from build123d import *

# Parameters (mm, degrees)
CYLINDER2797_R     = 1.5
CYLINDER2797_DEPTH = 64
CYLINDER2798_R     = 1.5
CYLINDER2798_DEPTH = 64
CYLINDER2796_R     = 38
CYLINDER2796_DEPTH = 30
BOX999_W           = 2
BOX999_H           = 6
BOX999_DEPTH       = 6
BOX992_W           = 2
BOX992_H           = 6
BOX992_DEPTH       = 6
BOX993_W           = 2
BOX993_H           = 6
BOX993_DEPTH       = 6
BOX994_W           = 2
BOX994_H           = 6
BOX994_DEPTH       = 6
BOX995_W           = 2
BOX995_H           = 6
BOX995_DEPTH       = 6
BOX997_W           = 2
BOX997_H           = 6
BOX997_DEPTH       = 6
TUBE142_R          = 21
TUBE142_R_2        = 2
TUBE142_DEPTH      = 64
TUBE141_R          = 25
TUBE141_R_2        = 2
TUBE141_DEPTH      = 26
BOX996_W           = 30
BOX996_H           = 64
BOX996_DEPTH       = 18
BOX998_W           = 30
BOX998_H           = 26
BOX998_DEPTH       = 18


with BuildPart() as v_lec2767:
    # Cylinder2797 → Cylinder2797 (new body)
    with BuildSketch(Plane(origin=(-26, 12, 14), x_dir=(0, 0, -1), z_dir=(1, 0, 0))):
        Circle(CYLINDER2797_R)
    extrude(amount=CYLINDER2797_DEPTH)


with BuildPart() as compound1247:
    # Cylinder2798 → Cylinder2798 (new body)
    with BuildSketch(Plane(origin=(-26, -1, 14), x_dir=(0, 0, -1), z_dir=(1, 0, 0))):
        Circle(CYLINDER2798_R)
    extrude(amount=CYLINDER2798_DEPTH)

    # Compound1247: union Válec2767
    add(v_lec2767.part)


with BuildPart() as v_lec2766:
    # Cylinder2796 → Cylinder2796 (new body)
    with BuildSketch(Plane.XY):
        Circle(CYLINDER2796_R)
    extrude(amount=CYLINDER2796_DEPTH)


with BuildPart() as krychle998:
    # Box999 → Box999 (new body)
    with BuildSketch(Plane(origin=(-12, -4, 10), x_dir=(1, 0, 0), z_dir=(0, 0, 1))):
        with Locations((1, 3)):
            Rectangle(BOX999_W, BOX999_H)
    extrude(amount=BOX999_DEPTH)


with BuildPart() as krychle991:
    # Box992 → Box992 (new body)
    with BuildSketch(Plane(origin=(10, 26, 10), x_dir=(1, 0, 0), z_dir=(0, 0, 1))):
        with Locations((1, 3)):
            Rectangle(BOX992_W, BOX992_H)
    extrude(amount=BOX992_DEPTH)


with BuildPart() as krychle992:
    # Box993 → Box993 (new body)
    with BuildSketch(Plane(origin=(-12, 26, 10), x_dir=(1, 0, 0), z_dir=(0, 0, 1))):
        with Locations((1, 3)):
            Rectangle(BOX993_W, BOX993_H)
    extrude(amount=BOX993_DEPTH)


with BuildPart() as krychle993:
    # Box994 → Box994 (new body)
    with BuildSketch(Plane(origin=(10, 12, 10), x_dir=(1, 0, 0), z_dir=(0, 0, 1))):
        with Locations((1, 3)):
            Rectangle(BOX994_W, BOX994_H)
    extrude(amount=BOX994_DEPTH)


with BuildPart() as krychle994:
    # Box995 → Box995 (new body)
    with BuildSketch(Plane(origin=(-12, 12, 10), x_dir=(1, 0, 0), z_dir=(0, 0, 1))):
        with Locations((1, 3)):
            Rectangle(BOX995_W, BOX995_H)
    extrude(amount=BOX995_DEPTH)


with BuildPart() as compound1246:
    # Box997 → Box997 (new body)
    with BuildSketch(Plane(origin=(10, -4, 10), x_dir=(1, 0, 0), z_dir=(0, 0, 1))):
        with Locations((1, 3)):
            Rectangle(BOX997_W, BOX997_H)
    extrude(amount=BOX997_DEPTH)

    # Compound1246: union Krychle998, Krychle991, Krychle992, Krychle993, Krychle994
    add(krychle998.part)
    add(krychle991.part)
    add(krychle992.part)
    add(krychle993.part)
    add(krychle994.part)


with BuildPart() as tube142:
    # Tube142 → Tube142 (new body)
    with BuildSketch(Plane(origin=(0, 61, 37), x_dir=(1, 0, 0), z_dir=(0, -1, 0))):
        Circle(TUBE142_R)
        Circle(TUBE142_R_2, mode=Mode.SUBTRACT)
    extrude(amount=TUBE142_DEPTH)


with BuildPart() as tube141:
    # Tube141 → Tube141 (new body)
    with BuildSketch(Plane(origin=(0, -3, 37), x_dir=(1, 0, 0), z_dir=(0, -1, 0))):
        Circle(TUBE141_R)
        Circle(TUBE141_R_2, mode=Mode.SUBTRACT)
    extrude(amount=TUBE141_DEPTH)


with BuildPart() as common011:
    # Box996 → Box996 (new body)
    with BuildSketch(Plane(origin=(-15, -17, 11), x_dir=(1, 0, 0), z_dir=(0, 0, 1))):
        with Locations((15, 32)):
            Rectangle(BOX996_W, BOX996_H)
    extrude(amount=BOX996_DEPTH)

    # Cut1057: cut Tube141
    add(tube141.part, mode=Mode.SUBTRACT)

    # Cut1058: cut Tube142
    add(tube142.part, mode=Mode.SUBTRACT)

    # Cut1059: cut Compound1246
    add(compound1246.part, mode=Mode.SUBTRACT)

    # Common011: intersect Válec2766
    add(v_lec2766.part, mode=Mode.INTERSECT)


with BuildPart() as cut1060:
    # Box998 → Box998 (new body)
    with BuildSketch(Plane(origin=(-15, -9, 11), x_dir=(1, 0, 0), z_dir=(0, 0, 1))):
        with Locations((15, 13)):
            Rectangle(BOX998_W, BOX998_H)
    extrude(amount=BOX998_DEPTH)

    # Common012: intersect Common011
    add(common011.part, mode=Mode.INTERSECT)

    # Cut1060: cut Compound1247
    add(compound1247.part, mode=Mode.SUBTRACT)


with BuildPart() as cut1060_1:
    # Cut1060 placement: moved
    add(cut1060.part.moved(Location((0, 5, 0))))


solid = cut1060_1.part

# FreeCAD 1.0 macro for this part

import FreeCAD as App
import Part
import Sketcher

V = App.Vector
Q = App.Units.Quantity

doc = App.newDocument("Part")
params = doc.addObject("Spreadsheet::Sheet", "Params")
for row, (alias, value) in enumerate([
    ("sketch1_diameter", "3 mm"),
    ("pad1_length", "64 mm"),
    ("sketch2_diameter", "3 mm"),
    ("pad2_length", "64 mm"),
    ("sketch3_diameter", "76 mm"),
    ("pad3_length", "30 mm"),
    ("sketch4_width", "2 mm"),
    ("sketch4_height", "6 mm"),
    ("pad4_length", "6 mm"),
    ("sketch5_width", "2 mm"),
    ("sketch5_height", "6 mm"),
    ("pad5_length", "6 mm"),
    ("sketch6_width", "2 mm"),
    ("sketch6_height", "6 mm"),
    ("pad6_length", "6 mm"),
    ("sketch7_width", "2 mm"),
    ("sketch7_height", "6 mm"),
    ("pad7_length", "6 mm"),
    ("sketch8_width", "2 mm"),
    ("sketch8_height", "6 mm"),
    ("pad8_length", "6 mm"),
    ("sketch9_width", "2 mm"),
    ("sketch9_height", "6 mm"),
    ("pad9_length", "6 mm"),
    ("sketch10_diameter", "42 mm"),
    ("sketch10_diameter2", "4 mm"),
    ("pad10_length", "64 mm"),
    ("sketch11_diameter", "50 mm"),
    ("sketch11_diameter2", "4 mm"),
    ("pad11_length", "26 mm"),
    ("sketch12_width", "30 mm"),
    ("sketch12_height", "64 mm"),
    ("pad12_length", "18 mm"),
    ("sketch13_width", "30 mm"),
    ("sketch13_height", "26 mm"),
    ("pad13_length", "18 mm"),
], start=1):
    params.set(f"A{row}", alias)
    params.set(f"B{row}", "=" + value)
    params.setAlias(f"B{row}", alias)

body = doc.addObject("PartDesign::Body", "Body")

# Sketch on YZ plane
sketch1 = body.newObject("Sketcher::SketchObject", "Sketch")
sketch1.AttachmentSupport = (doc.getObject("YZ_Plane"), [""])
sketch1.MapMode = "FlatFace"
sketch1.AttachmentOffset = App.Placement(V(0, 0, -26), App.Rotation())
sketch1.addGeometry(Part.Circle(V(12, 14, 0), V(0, 0, 1), 1.5), False)
sketch1.addConstraint([
    Sketcher.Constraint("Diameter", 0, Q("3 mm")),
    Sketcher.Constraint("DistanceX", -1, 1, 0, 3, Q("12 mm")),
    Sketcher.Constraint("DistanceY", -1, 1, 0, 3, Q("14 mm")),
])
sketch1.setExpression("Constraints[0]", "Params.sketch1_diameter")
pad1 = body.newObject("PartDesign::Pad", "Pad")
pad1.Profile = sketch1
pad1.setExpression("Length", "Params.pad1_length")
body2 = doc.addObject("PartDesign::Body", "Body001")
body2.AllowCompound = True

# Sketch on YZ plane
sketch2 = body2.newObject("Sketcher::SketchObject", "Sketch001")
sketch2.AttachmentSupport = (doc.getObject("YZ_Plane001"), [""])
sketch2.MapMode = "FlatFace"
sketch2.AttachmentOffset = App.Placement(V(0, 0, -26), App.Rotation())
sketch2.addGeometry(Part.Circle(V(-1, 14, 0), V(0, 0, 1), 1.5), False)
sketch2.addConstraint([
    Sketcher.Constraint("Diameter", 0, Q("3 mm")),
    Sketcher.Constraint("DistanceX", 0, 3, -1, 1, Q("1 mm")),
    Sketcher.Constraint("DistanceY", -1, 1, 0, 3, Q("14 mm")),
])
sketch2.setExpression("Constraints[0]", "Params.sketch2_diameter")
pad2 = body2.newObject("PartDesign::Pad", "Pad001")
pad2.Profile = sketch2
pad2.setExpression("Length", "Params.pad2_length")
doc.recompute()

boolean = body2.newObject("PartDesign::Boolean", "Boolean")
boolean.Type = "Fuse"
boolean.addObjects([body])
body3 = doc.addObject("PartDesign::Body", "Body002")

# Sketch on XY plane
sketch3 = body3.newObject("Sketcher::SketchObject", "Sketch002")
sketch3.AttachmentSupport = (doc.getObject("XY_Plane002"), [""])
sketch3.MapMode = "FlatFace"
sketch3.addGeometry(Part.Circle(V(0, 0, 0), V(0, 0, 1), 38), False)
sketch3.addConstraint([
    Sketcher.Constraint("Coincident", 0, 3, -1, 1),
    Sketcher.Constraint("Diameter", 0, Q("76 mm")),
])
sketch3.setExpression("Constraints[1]", "Params.sketch3_diameter")
pad3 = body3.newObject("PartDesign::Pad", "Pad002")
pad3.Profile = sketch3
pad3.setExpression("Length", "Params.pad3_length")
body4 = doc.addObject("PartDesign::Body", "Body003")

# Sketch on XY plane
sketch4 = body4.newObject("Sketcher::SketchObject", "Sketch003")
sketch4.AttachmentSupport = (doc.getObject("XY_Plane003"), [""])
sketch4.MapMode = "FlatFace"
sketch4.AttachmentOffset = App.Placement(V(0, 0, 10), App.Rotation())
sketch4.addGeometry([
    Part.LineSegment(V(-12, 2, 0), V(-12, -4, 0)),
    Part.LineSegment(V(-12, -4, 0), V(-10, -4, 0)),
    Part.LineSegment(V(-10, -4, 0), V(-10, 2, 0)),
    Part.LineSegment(V(-10, 2, 0), V(-12, 2, 0)),
], False)
sketch4.addConstraint([
    Sketcher.Constraint("Coincident", 0, 2, 1, 1),
    Sketcher.Constraint("Coincident", 1, 2, 2, 1),
    Sketcher.Constraint("Coincident", 2, 2, 3, 1),
    Sketcher.Constraint("Coincident", 3, 2, 0, 1),
    Sketcher.Constraint("Vertical", 0),
    Sketcher.Constraint("Horizontal", 1),
    Sketcher.Constraint("Vertical", 2),
    Sketcher.Constraint("Horizontal", 3),
    Sketcher.Constraint("DistanceX", 1, 1, 1, 2, Q("2 mm")),
    Sketcher.Constraint("DistanceY", 0, 2, 0, 1, Q("6 mm")),
    Sketcher.Constraint("DistanceX", 0, 2, -1, 1, Q("12 mm")),
    Sketcher.Constraint("DistanceY", 0, 2, -1, 1, Q("4 mm")),
])
sketch4.setExpression("Constraints[8]", "Params.sketch4_width")
sketch4.setExpression("Constraints[9]", "Params.sketch4_height")
pad4 = body4.newObject("PartDesign::Pad", "Pad003")
pad4.Profile = sketch4
pad4.setExpression("Length", "Params.pad4_length")
body5 = doc.addObject("PartDesign::Body", "Body004")

# Sketch on XY plane
sketch5 = body5.newObject("Sketcher::SketchObject", "Sketch004")
sketch5.AttachmentSupport = (doc.getObject("XY_Plane004"), [""])
sketch5.MapMode = "FlatFace"
sketch5.AttachmentOffset = App.Placement(V(0, 0, 10), App.Rotation())
sketch5.addGeometry([
    Part.LineSegment(V(10, 32, 0), V(10, 26, 0)),
    Part.LineSegment(V(10, 26, 0), V(12, 26, 0)),
    Part.LineSegment(V(12, 26, 0), V(12, 32, 0)),
    Part.LineSegment(V(12, 32, 0), V(10, 32, 0)),
], False)
sketch5.addConstraint([
    Sketcher.Constraint("Coincident", 0, 2, 1, 1),
    Sketcher.Constraint("Coincident", 1, 2, 2, 1),
    Sketcher.Constraint("Coincident", 2, 2, 3, 1),
    Sketcher.Constraint("Coincident", 3, 2, 0, 1),
    Sketcher.Constraint("Vertical", 0),
    Sketcher.Constraint("Horizontal", 1),
    Sketcher.Constraint("Vertical", 2),
    Sketcher.Constraint("Horizontal", 3),
    Sketcher.Constraint("DistanceX", 1, 1, 1, 2, Q("2 mm")),
    Sketcher.Constraint("DistanceY", 0, 2, 0, 1, Q("6 mm")),
    Sketcher.Constraint("DistanceX", -1, 1, 0, 2, Q("10 mm")),
    Sketcher.Constraint("DistanceY", -1, 1, 0, 2, Q("26 mm")),
])
sketch5.setExpression("Constraints[8]", "Params.sketch5_width")
sketch5.setExpression("Constraints[9]", "Params.sketch5_height")
pad5 = body5.newObject("PartDesign::Pad", "Pad004")
pad5.Profile = sketch5
pad5.setExpression("Length", "Params.pad5_length")
body6 = doc.addObject("PartDesign::Body", "Body005")

# Sketch on XY plane
sketch6 = body6.newObject("Sketcher::SketchObject", "Sketch005")
sketch6.AttachmentSupport = (doc.getObject("XY_Plane005"), [""])
sketch6.MapMode = "FlatFace"
sketch6.AttachmentOffset = App.Placement(V(0, 0, 10), App.Rotation())
sketch6.addGeometry([
    Part.LineSegment(V(-12, 32, 0), V(-12, 26, 0)),
    Part.LineSegment(V(-12, 26, 0), V(-10, 26, 0)),
    Part.LineSegment(V(-10, 26, 0), V(-10, 32, 0)),
    Part.LineSegment(V(-10, 32, 0), V(-12, 32, 0)),
], False)
sketch6.addConstraint([
    Sketcher.Constraint("Coincident", 0, 2, 1, 1),
    Sketcher.Constraint("Coincident", 1, 2, 2, 1),
    Sketcher.Constraint("Coincident", 2, 2, 3, 1),
    Sketcher.Constraint("Coincident", 3, 2, 0, 1),
    Sketcher.Constraint("Vertical", 0),
    Sketcher.Constraint("Horizontal", 1),
    Sketcher.Constraint("Vertical", 2),
    Sketcher.Constraint("Horizontal", 3),
    Sketcher.Constraint("DistanceX", 1, 1, 1, 2, Q("2 mm")),
    Sketcher.Constraint("DistanceY", 0, 2, 0, 1, Q("6 mm")),
    Sketcher.Constraint("DistanceX", 0, 2, -1, 1, Q("12 mm")),
    Sketcher.Constraint("DistanceY", -1, 1, 0, 2, Q("26 mm")),
])
sketch6.setExpression("Constraints[8]", "Params.sketch6_width")
sketch6.setExpression("Constraints[9]", "Params.sketch6_height")
pad6 = body6.newObject("PartDesign::Pad", "Pad005")
pad6.Profile = sketch6
pad6.setExpression("Length", "Params.pad6_length")
body7 = doc.addObject("PartDesign::Body", "Body006")

# Sketch on XY plane
sketch7 = body7.newObject("Sketcher::SketchObject", "Sketch006")
sketch7.AttachmentSupport = (doc.getObject("XY_Plane006"), [""])
sketch7.MapMode = "FlatFace"
sketch7.AttachmentOffset = App.Placement(V(0, 0, 10), App.Rotation())
sketch7.addGeometry([
    Part.LineSegment(V(10, 18, 0), V(10, 12, 0)),
    Part.LineSegment(V(10, 12, 0), V(12, 12, 0)),
    Part.LineSegment(V(12, 12, 0), V(12, 18, 0)),
    Part.LineSegment(V(12, 18, 0), V(10, 18, 0)),
], False)
sketch7.addConstraint([
    Sketcher.Constraint("Coincident", 0, 2, 1, 1),
    Sketcher.Constraint("Coincident", 1, 2, 2, 1),
    Sketcher.Constraint("Coincident", 2, 2, 3, 1),
    Sketcher.Constraint("Coincident", 3, 2, 0, 1),
    Sketcher.Constraint("Vertical", 0),
    Sketcher.Constraint("Horizontal", 1),
    Sketcher.Constraint("Vertical", 2),
    Sketcher.Constraint("Horizontal", 3),
    Sketcher.Constraint("DistanceX", 1, 1, 1, 2, Q("2 mm")),
    Sketcher.Constraint("DistanceY", 0, 2, 0, 1, Q("6 mm")),
    Sketcher.Constraint("DistanceX", -1, 1, 0, 2, Q("10 mm")),
    Sketcher.Constraint("DistanceY", -1, 1, 0, 2, Q("12 mm")),
])
sketch7.setExpression("Constraints[8]", "Params.sketch7_width")
sketch7.setExpression("Constraints[9]", "Params.sketch7_height")
pad7 = body7.newObject("PartDesign::Pad", "Pad006")
pad7.Profile = sketch7
pad7.setExpression("Length", "Params.pad7_length")
body8 = doc.addObject("PartDesign::Body", "Body007")

# Sketch on XY plane
sketch8 = body8.newObject("Sketcher::SketchObject", "Sketch007")
sketch8.AttachmentSupport = (doc.getObject("XY_Plane007"), [""])
sketch8.MapMode = "FlatFace"
sketch8.AttachmentOffset = App.Placement(V(0, 0, 10), App.Rotation())
sketch8.addGeometry([
    Part.LineSegment(V(-12, 18, 0), V(-12, 12, 0)),
    Part.LineSegment(V(-12, 12, 0), V(-10, 12, 0)),
    Part.LineSegment(V(-10, 12, 0), V(-10, 18, 0)),
    Part.LineSegment(V(-10, 18, 0), V(-12, 18, 0)),
], False)
sketch8.addConstraint([
    Sketcher.Constraint("Coincident", 0, 2, 1, 1),
    Sketcher.Constraint("Coincident", 1, 2, 2, 1),
    Sketcher.Constraint("Coincident", 2, 2, 3, 1),
    Sketcher.Constraint("Coincident", 3, 2, 0, 1),
    Sketcher.Constraint("Vertical", 0),
    Sketcher.Constraint("Horizontal", 1),
    Sketcher.Constraint("Vertical", 2),
    Sketcher.Constraint("Horizontal", 3),
    Sketcher.Constraint("DistanceX", 1, 1, 1, 2, Q("2 mm")),
    Sketcher.Constraint("DistanceY", 0, 2, 0, 1, Q("6 mm")),
    Sketcher.Constraint("DistanceX", 0, 2, -1, 1, Q("12 mm")),
    Sketcher.Constraint("DistanceY", -1, 1, 0, 2, Q("12 mm")),
])
sketch8.setExpression("Constraints[8]", "Params.sketch8_width")
sketch8.setExpression("Constraints[9]", "Params.sketch8_height")
pad8 = body8.newObject("PartDesign::Pad", "Pad007")
pad8.Profile = sketch8
pad8.setExpression("Length", "Params.pad8_length")
body9 = doc.addObject("PartDesign::Body", "Body008")
body9.AllowCompound = True

# Sketch on XY plane
sketch9 = body9.newObject("Sketcher::SketchObject", "Sketch008")
sketch9.AttachmentSupport = (doc.getObject("XY_Plane008"), [""])
sketch9.MapMode = "FlatFace"
sketch9.AttachmentOffset = App.Placement(V(0, 0, 10), App.Rotation())
sketch9.addGeometry([
    Part.LineSegment(V(10, 2, 0), V(10, -4, 0)),
    Part.LineSegment(V(10, -4, 0), V(12, -4, 0)),
    Part.LineSegment(V(12, -4, 0), V(12, 2, 0)),
    Part.LineSegment(V(12, 2, 0), V(10, 2, 0)),
], False)
sketch9.addConstraint([
    Sketcher.Constraint("Coincident", 0, 2, 1, 1),
    Sketcher.Constraint("Coincident", 1, 2, 2, 1),
    Sketcher.Constraint("Coincident", 2, 2, 3, 1),
    Sketcher.Constraint("Coincident", 3, 2, 0, 1),
    Sketcher.Constraint("Vertical", 0),
    Sketcher.Constraint("Horizontal", 1),
    Sketcher.Constraint("Vertical", 2),
    Sketcher.Constraint("Horizontal", 3),
    Sketcher.Constraint("DistanceX", 1, 1, 1, 2, Q("2 mm")),
    Sketcher.Constraint("DistanceY", 0, 2, 0, 1, Q("6 mm")),
    Sketcher.Constraint("DistanceX", -1, 1, 0, 2, Q("10 mm")),
    Sketcher.Constraint("DistanceY", 0, 2, -1, 1, Q("4 mm")),
])
sketch9.setExpression("Constraints[8]", "Params.sketch9_width")
sketch9.setExpression("Constraints[9]", "Params.sketch9_height")
pad9 = body9.newObject("PartDesign::Pad", "Pad008")
pad9.Profile = sketch9
pad9.setExpression("Length", "Params.pad9_length")
doc.recompute()

boolean2 = body9.newObject("PartDesign::Boolean", "Boolean001")
boolean2.Type = "Fuse"
boolean2.addObjects([body4])
doc.recompute()

boolean3 = body9.newObject("PartDesign::Boolean", "Boolean002")
boolean3.Type = "Fuse"
boolean3.addObjects([body5])
doc.recompute()

boolean4 = body9.newObject("PartDesign::Boolean", "Boolean003")
boolean4.Type = "Fuse"
boolean4.addObjects([body6])
doc.recompute()

boolean5 = body9.newObject("PartDesign::Boolean", "Boolean004")
boolean5.Type = "Fuse"
boolean5.addObjects([body7])
doc.recompute()

boolean6 = body9.newObject("PartDesign::Boolean", "Boolean005")
boolean6.Type = "Fuse"
boolean6.addObjects([body8])
body10 = doc.addObject("PartDesign::Body", "Body009")

# Sketch on XZ plane
sketch10 = body10.newObject("Sketcher::SketchObject", "Sketch009")
sketch10.AttachmentSupport = (doc.getObject("XZ_Plane009"), [""])
sketch10.MapMode = "FlatFace"
sketch10.AttachmentOffset = App.Placement(V(0, 0, -61), App.Rotation())
sketch10.addGeometry([
    Part.Circle(V(0, 37, 0), V(0, 0, 1), 21),
    Part.Circle(V(0, 37, 0), V(0, 0, 1), 2),
], False)
sketch10.addConstraint([
    Sketcher.Constraint("Coincident", 1, 3, 0, 3),
    Sketcher.Constraint("PointOnObject", 0, 3, -2),
    Sketcher.Constraint("Diameter", 0, Q("42 mm")),
    Sketcher.Constraint("Diameter", 1, Q("4 mm")),
    Sketcher.Constraint("DistanceY", -1, 1, 0, 3, Q("37 mm")),
])
sketch10.setExpression("Constraints[2]", "Params.sketch10_diameter")
sketch10.setExpression("Constraints[3]", "Params.sketch10_diameter2")
pad10 = body10.newObject("PartDesign::Pad", "Pad009")
pad10.Profile = sketch10
pad10.setExpression("Length", "Params.pad10_length")
body11 = doc.addObject("PartDesign::Body", "Body010")

# Sketch on XZ plane
sketch11 = body11.newObject("Sketcher::SketchObject", "Sketch010")
sketch11.AttachmentSupport = (doc.getObject("XZ_Plane010"), [""])
sketch11.MapMode = "FlatFace"
sketch11.AttachmentOffset = App.Placement(V(0, 0, 3), App.Rotation())
sketch11.addGeometry([
    Part.Circle(V(0, 37, 0), V(0, 0, 1), 25),
    Part.Circle(V(0, 37, 0), V(0, 0, 1), 2),
], False)
sketch11.addConstraint([
    Sketcher.Constraint("Coincident", 1, 3, 0, 3),
    Sketcher.Constraint("PointOnObject", 0, 3, -2),
    Sketcher.Constraint("Diameter", 0, Q("50 mm")),
    Sketcher.Constraint("Diameter", 1, Q("4 mm")),
    Sketcher.Constraint("DistanceY", -1, 1, 0, 3, Q("37 mm")),
])
sketch11.setExpression("Constraints[2]", "Params.sketch11_diameter")
sketch11.setExpression("Constraints[3]", "Params.sketch11_diameter2")
pad11 = body11.newObject("PartDesign::Pad", "Pad010")
pad11.Profile = sketch11
pad11.setExpression("Length", "Params.pad11_length")
body12 = doc.addObject("PartDesign::Body", "Body011")

# Sketch on XY plane
sketch12 = body12.newObject("Sketcher::SketchObject", "Sketch011")
sketch12.AttachmentSupport = (doc.getObject("XY_Plane011"), [""])
sketch12.MapMode = "FlatFace"
sketch12.AttachmentOffset = App.Placement(V(0, 0, 11), App.Rotation())
sketch12.addGeometry([
    Part.LineSegment(V(-15, 47, 0), V(-15, -17, 0)),
    Part.LineSegment(V(-15, -17, 0), V(15, -17, 0)),
    Part.LineSegment(V(15, -17, 0), V(15, 47, 0)),
    Part.LineSegment(V(15, 47, 0), V(-15, 47, 0)),
], False)
sketch12.addConstraint([
    Sketcher.Constraint("Coincident", 0, 2, 1, 1),
    Sketcher.Constraint("Coincident", 1, 2, 2, 1),
    Sketcher.Constraint("Coincident", 2, 2, 3, 1),
    Sketcher.Constraint("Coincident", 3, 2, 0, 1),
    Sketcher.Constraint("Vertical", 0),
    Sketcher.Constraint("Horizontal", 1),
    Sketcher.Constraint("Vertical", 2),
    Sketcher.Constraint("Horizontal", 3),
    Sketcher.Constraint("DistanceX", 1, 1, 1, 2, Q("30 mm")),
    Sketcher.Constraint("DistanceY", 0, 2, 0, 1, Q("64 mm")),
    Sketcher.Constraint("DistanceX", 0, 2, -1, 1, Q("15 mm")),
    Sketcher.Constraint("DistanceY", 0, 2, -1, 1, Q("17 mm")),
])
sketch12.setExpression("Constraints[8]", "Params.sketch12_width")
sketch12.setExpression("Constraints[9]", "Params.sketch12_height")
pad12 = body12.newObject("PartDesign::Pad", "Pad011")
pad12.Profile = sketch12
pad12.setExpression("Length", "Params.pad12_length")
doc.recompute()

boolean7 = body12.newObject("PartDesign::Boolean", "Boolean006")
boolean7.Type = "Cut"
boolean7.addObjects([body11])
doc.recompute()

boolean8 = body12.newObject("PartDesign::Boolean", "Boolean007")
boolean8.Type = "Cut"
boolean8.addObjects([body10])
doc.recompute()

boolean9 = body12.newObject("PartDesign::Boolean", "Boolean008")
boolean9.Type = "Cut"
boolean9.addObjects([body9])
doc.recompute()

boolean10 = body12.newObject("PartDesign::Boolean", "Boolean009")
boolean10.Type = "Common"
boolean10.addObjects([body3])
body13 = doc.addObject("PartDesign::Body", "Body012")

# Sketch on XY plane
sketch13 = body13.newObject("Sketcher::SketchObject", "Sketch012")
sketch13.AttachmentSupport = (doc.getObject("XY_Plane012"), [""])
sketch13.MapMode = "FlatFace"
sketch13.AttachmentOffset = App.Placement(V(0, 0, 11), App.Rotation())
sketch13.addGeometry([
    Part.LineSegment(V(-15, 17, 0), V(-15, -9, 0)),
    Part.LineSegment(V(-15, -9, 0), V(15, -9, 0)),
    Part.LineSegment(V(15, -9, 0), V(15, 17, 0)),
    Part.LineSegment(V(15, 17, 0), V(-15, 17, 0)),
], False)
sketch13.addConstraint([
    Sketcher.Constraint("Coincident", 0, 2, 1, 1),
    Sketcher.Constraint("Coincident", 1, 2, 2, 1),
    Sketcher.Constraint("Coincident", 2, 2, 3, 1),
    Sketcher.Constraint("Coincident", 3, 2, 0, 1),
    Sketcher.Constraint("Vertical", 0),
    Sketcher.Constraint("Horizontal", 1),
    Sketcher.Constraint("Vertical", 2),
    Sketcher.Constraint("Horizontal", 3),
    Sketcher.Constraint("DistanceX", 1, 1, 1, 2, Q("30 mm")),
    Sketcher.Constraint("DistanceY", 0, 2, 0, 1, Q("26 mm")),
    Sketcher.Constraint("DistanceX", 0, 2, -1, 1, Q("15 mm")),
    Sketcher.Constraint("DistanceY", 0, 2, -1, 1, Q("9 mm")),
])
sketch13.setExpression("Constraints[8]", "Params.sketch13_width")
sketch13.setExpression("Constraints[9]", "Params.sketch13_height")
pad13 = body13.newObject("PartDesign::Pad", "Pad012")
pad13.Profile = sketch13
pad13.setExpression("Length", "Params.pad13_length")
doc.recompute()

boolean11 = body13.newObject("PartDesign::Boolean", "Boolean010")
boolean11.Type = "Common"
boolean11.addObjects([body12])
doc.recompute()

boolean12 = body13.newObject("PartDesign::Boolean", "Boolean011")
boolean12.Type = "Cut"
boolean12.addObjects([body2])
body14 = doc.addObject("PartDesign::Body", "Body013")
doc.recompute()

body13.Placement = App.Placement(V(0, 5, 0), App.Rotation(V(0, 0, 1), 0))
boolean13 = body14.newObject("PartDesign::Boolean", "Boolean012")
boolean13.Type = "Fuse"
boolean13.addObjects([body13])

doc.recompute()
